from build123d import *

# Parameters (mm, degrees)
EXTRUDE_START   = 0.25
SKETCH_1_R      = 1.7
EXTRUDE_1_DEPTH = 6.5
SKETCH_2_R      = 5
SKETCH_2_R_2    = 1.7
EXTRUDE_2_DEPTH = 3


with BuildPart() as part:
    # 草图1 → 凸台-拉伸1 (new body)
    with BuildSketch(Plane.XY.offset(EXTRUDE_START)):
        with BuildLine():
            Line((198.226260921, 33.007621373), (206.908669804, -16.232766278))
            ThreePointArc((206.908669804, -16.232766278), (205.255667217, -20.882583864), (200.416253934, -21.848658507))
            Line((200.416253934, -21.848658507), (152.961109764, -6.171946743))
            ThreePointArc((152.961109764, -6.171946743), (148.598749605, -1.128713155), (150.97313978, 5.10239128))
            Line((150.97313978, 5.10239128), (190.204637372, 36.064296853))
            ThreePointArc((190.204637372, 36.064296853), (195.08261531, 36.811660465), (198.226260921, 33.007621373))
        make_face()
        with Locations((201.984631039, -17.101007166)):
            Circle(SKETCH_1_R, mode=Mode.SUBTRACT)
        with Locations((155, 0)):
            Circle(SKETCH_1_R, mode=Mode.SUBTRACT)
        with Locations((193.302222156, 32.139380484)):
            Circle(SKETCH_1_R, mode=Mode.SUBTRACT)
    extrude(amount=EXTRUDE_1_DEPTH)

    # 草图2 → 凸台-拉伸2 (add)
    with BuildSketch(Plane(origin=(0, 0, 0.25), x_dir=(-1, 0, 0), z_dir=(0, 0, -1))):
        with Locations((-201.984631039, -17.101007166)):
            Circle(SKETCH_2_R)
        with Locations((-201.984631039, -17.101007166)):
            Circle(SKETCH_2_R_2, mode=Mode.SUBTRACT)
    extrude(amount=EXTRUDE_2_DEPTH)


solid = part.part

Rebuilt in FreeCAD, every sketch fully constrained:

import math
import FreeCAD as App
import Part
import Sketcher

V = App.Vector
Q = App.Units.Quantity

doc = App.newDocument("Part")
body = doc.addObject("PartDesign::Body", "Body")

# Sketch on XY plane
sketch1 = doc.addObject("Sketcher::SketchObject", "Sketch")
body.addObject(sketch1)
sketch1.AttachmentSupport = (doc.XY_Plane, [""])
sketch1.MapMode = "FlatFace"
sketch1.AttachmentOffset = App.Placement(V(0, 0, 0.25), App.Rotation())
sketch1.addGeometry(Part.LineSegment(V(206.90867, -16.232766, 0), V(198.226261, 33.007621, 0)), False)
sketch1.addGeometry(Part.ArcOfCircle(Part.Circle(V(193.302222, 32.13938, 0), V(0, 0, 1), 5), math.radians(10), math.radians(128.280869)), False)
sketch1.addGeometry(Part.LineSegment(V(190.204637, 36.064297, 0), V(150.97314, 5.102391, 0)), False)
sketch1.addGeometry(Part.ArcOfCircle(Part.Circle(V(155, 0, 0), V(0, 0, 1), 6.5), math.radians(128.280869), math.radians(251.719131)), False)
sketch1.addGeometry(Part.LineSegment(V(152.96111, -6.171947, 0), V(200.416254, -21.848659, 0)), False)
sketch1.addGeometry(Part.ArcOfCircle(Part.Circle(V(201.984631, -17.101007, 0), V(0, 0, 1), 5), math.radians(-108.280869), math.radians(10)), False)
sketch1.addGeometry(Part.Circle(V(201.984631, -17.101007, 0), V(0, 0, 1), 1.7), False)
sketch1.addGeometry(Part.Circle(V(155, 0, 0), V(0, 0, 1), 1.7), False)
sketch1.addGeometry(Part.Circle(V(193.302222, 32.13938, 0), V(0, 0, 1), 1.7), False)
sketch1.addConstraint(Sketcher.Constraint("Tangent", 0, 2, 1, 1))
sketch1.addConstraint(Sketcher.Constraint("Tangent", 1, 2, 2, 1))
sketch1.addConstraint(Sketcher.Constraint("Tangent", 2, 2, 3, 1))
sketch1.addConstraint(Sketcher.Constraint("Tangent", 3, 2, 4, 1))
sketch1.addConstraint(Sketcher.Constraint("Tangent", 4, 2, 5, 1))
sketch1.addConstraint(Sketcher.Constraint("Tangent", 5, 2, 0, 1))
sketch1.addConstraint(Sketcher.Constraint("Coincident", 6, 3, 5, 3))
sketch1.addConstraint(Sketcher.Constraint("Coincident", 7, 3, 3, 3))
sketch1.addConstraint(Sketcher.Constraint("Coincident", 8, 3, 1, 3))
sketch1.addConstraint(Sketcher.Constraint("Equal", 1, 5))
sketch1.addConstraint(Sketcher.Constraint("Equal", 6, 7))
sketch1.addConstraint(Sketcher.Constraint("Equal", 7, 8))
sketch1.addConstraint(Sketcher.Constraint("PointOnObject", 3, 3, -1))
sketch1.addConstraint(Sketcher.Constraint("Equal", 2, 4))
sketch1.addConstraint(Sketcher.Constraint("Radius", 1, Q("5 mm")))
sketch1.addConstraint(Sketcher.Constraint("Diameter", 6, Q("3.4 mm")))
sketch1.addConstraint(Sketcher.Constraint("Radius", 3, Q("6.5 mm")))
sketch1.addConstraint(Sketcher.Constraint("Angle", 0, Q("100 deg")))
sketch1.addConstraint(Sketcher.Constraint("Distance", 0, Q("50 mm")))
sketch1.addConstraint(Sketcher.Constraint("DistanceX", -1, 1, 3, 3, Q("155 mm")))
sketch1.addConstraint(Sketcher.Constraint("DistanceY", -1, 1, 1, 3, Q("32.13938 mm")))
pad1 = doc.addObject("PartDesign::Pad", "Pad")
body.addObject(pad1)
pad1.Profile = sketch1
pad1.Length = 6.5

# Sketch on XY plane
sketch2 = doc.addObject("Sketcher::SketchObject", "Sketch001")
body.addObject(sketch2)
sketch2.AttachmentSupport = (doc.XY_Plane, [""])
sketch2.MapMode = "FlatFace"
sketch2.AttachmentOffset = App.Placement(V(0, 0, 0.25), App.Rotation())
sketch2.addGeometry(Part.Circle(V(201.984631, -17.101007, 0), V(0, 0, 1), 5), False)
sketch2.addGeometry(Part.Circle(V(201.984631, -17.101007, 0), V(0, 0, 1), 1.7), False)
sketch2.addConstraint(Sketcher.Constraint("Coincident", 1, 3, 0, 3))
sketch2.addConstraint(Sketcher.Constraint("Diameter", 0, Q("10 mm")))
sketch2.addConstraint(Sketcher.Constraint("Diameter", 1, Q("3.4 mm")))
sketch2.addConstraint(Sketcher.Constraint("DistanceX", -1, 1, 0, 3, Q("201.984631 mm")))
sketch2.addConstraint(Sketcher.Constraint("DistanceY", 0, 3, -1, 1, Q("17.101007 mm")))
pad2 = doc.addObject("PartDesign::Pad", "Pad001")
body.addObject(pad2)
pad2.Profile = sketch2
pad2.Length = 3
pad2.Reversed = True

doc.recompute()
